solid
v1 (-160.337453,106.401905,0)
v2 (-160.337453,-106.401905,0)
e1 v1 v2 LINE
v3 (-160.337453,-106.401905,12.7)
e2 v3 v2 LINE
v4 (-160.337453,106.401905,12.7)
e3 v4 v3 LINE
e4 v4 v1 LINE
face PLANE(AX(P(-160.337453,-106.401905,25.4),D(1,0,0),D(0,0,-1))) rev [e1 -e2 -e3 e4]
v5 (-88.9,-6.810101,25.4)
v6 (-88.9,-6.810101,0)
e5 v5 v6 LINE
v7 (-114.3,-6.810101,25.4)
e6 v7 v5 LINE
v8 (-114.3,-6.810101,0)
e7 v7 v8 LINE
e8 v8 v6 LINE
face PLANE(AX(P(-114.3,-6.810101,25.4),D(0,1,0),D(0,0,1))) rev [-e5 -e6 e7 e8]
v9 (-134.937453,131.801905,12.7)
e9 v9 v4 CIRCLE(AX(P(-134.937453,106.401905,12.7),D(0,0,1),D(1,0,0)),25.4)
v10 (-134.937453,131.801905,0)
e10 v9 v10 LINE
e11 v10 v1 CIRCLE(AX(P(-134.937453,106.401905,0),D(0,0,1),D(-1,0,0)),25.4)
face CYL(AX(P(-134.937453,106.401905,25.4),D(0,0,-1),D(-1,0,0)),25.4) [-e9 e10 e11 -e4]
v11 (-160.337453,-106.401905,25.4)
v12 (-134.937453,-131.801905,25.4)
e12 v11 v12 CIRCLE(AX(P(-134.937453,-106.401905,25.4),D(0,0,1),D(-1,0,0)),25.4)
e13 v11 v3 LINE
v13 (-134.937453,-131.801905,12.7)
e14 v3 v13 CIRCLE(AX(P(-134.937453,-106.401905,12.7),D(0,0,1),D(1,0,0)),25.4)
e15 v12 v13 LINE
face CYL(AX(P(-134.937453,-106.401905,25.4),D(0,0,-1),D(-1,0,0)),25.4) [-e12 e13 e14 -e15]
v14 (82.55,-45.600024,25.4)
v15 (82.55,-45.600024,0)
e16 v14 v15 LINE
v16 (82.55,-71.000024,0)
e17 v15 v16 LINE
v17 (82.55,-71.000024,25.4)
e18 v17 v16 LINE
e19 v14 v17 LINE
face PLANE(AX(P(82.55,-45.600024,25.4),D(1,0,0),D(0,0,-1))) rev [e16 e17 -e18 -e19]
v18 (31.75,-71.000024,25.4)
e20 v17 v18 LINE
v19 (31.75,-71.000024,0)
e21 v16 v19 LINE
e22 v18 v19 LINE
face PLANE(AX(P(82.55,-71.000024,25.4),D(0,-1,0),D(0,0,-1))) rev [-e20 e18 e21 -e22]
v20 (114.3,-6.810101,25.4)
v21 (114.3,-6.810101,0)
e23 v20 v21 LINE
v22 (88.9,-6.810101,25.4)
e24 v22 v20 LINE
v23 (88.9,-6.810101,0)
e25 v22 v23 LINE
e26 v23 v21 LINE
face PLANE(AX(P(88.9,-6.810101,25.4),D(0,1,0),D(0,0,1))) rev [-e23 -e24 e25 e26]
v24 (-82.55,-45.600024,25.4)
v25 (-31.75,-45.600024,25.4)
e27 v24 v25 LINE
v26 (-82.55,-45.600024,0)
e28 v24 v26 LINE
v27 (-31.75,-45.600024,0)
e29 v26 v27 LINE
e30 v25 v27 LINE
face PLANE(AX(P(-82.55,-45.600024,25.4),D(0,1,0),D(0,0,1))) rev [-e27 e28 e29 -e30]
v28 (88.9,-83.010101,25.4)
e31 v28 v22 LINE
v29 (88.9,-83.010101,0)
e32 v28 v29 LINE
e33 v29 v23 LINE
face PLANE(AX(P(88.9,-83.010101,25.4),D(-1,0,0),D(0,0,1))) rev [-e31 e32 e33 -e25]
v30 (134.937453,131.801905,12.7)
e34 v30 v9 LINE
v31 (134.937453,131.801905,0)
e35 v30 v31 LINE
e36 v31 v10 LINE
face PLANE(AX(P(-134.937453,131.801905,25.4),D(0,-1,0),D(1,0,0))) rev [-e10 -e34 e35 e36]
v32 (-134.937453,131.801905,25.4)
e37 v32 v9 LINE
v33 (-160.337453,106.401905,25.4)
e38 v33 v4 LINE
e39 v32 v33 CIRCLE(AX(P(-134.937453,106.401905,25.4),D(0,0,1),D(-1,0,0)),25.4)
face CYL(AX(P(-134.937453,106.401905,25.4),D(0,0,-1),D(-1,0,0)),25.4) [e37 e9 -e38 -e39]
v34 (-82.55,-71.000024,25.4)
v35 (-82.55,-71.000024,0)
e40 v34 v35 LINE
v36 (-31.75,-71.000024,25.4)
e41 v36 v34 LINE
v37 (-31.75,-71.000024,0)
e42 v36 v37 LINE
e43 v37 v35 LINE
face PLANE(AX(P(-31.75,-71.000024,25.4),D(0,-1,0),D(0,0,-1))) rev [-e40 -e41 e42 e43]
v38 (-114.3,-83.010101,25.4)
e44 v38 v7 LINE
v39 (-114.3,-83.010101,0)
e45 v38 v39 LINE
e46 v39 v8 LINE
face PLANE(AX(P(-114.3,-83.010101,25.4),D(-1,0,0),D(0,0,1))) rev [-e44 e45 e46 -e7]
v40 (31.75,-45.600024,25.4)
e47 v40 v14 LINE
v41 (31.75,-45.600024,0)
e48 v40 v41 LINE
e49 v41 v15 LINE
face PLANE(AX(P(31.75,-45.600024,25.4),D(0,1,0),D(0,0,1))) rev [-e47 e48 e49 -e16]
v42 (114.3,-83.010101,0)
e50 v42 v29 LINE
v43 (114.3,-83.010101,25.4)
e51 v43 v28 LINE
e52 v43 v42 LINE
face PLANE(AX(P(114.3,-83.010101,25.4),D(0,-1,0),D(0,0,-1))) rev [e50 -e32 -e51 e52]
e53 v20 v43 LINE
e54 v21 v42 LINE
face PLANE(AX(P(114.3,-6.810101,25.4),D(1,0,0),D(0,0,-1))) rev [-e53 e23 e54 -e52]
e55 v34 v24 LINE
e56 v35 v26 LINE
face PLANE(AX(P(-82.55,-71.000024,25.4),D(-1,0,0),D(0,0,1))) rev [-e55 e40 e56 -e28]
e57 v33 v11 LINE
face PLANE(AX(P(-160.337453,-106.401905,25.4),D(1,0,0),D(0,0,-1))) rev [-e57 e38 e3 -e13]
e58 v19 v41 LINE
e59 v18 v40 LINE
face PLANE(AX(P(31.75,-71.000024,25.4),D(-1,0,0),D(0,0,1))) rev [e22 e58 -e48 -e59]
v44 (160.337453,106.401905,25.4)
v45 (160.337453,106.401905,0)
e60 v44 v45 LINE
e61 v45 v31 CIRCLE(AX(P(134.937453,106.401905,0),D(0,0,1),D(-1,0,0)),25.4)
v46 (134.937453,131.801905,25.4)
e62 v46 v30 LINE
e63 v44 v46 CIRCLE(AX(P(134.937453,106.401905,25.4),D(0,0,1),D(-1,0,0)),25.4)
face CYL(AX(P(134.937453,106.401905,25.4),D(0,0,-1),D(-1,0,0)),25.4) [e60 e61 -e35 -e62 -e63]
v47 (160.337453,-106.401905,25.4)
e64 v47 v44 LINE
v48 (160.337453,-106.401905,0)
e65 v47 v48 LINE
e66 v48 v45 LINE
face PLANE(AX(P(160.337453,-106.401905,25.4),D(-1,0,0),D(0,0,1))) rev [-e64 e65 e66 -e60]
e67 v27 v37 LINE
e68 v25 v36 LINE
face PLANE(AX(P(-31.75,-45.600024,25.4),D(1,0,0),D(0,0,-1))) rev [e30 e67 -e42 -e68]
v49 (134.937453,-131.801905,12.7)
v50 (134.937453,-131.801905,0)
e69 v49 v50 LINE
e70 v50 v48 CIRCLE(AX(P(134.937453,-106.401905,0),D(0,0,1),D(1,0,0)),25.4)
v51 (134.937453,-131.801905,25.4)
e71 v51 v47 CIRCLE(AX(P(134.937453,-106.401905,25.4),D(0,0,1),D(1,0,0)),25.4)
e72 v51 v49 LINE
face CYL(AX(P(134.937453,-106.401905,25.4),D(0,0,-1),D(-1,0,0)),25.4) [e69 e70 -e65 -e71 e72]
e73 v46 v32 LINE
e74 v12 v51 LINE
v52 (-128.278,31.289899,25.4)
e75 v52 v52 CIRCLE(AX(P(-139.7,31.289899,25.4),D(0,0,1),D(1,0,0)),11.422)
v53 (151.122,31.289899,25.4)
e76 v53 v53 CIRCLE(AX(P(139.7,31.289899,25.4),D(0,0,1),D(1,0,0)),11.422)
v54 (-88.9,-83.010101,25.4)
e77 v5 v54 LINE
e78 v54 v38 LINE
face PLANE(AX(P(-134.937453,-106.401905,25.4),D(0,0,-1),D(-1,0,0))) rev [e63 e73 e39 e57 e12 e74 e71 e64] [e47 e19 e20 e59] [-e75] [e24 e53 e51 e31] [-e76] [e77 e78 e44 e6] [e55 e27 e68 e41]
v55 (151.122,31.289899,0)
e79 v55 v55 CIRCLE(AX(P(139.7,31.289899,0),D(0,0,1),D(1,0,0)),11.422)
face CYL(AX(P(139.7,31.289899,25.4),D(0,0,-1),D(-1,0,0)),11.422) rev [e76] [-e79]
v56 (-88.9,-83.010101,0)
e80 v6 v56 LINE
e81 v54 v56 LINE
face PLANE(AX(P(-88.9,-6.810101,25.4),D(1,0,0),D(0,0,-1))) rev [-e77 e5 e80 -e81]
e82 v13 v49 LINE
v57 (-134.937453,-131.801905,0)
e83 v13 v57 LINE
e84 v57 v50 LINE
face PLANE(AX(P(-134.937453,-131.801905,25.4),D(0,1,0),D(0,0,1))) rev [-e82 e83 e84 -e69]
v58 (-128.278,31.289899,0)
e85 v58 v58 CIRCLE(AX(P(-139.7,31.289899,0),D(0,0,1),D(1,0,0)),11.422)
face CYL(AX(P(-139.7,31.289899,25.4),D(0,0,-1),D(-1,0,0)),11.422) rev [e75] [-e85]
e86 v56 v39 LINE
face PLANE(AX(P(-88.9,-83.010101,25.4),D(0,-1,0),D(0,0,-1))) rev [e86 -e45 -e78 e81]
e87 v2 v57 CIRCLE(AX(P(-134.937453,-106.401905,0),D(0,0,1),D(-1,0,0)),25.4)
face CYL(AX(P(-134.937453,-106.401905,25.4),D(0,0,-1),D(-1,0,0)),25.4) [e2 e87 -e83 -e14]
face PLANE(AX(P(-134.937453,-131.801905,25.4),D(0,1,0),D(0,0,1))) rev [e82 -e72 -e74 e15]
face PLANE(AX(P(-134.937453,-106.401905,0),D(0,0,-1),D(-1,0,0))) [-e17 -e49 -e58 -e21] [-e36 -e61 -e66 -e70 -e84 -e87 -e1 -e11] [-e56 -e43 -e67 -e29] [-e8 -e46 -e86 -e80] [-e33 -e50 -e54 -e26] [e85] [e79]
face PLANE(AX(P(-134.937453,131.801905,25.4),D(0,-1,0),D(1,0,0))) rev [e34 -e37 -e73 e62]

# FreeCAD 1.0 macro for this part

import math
import FreeCAD as App
import Part
import Sketcher
from FreeCAD import Vector
Q = App.Units.Quantity


def add_polygon(sketch, points):
    """Adds a closed chain of lines whose ends are joined by coincident constraints."""
    first, n = sketch.GeometryCount, len(points)
    for a, b in zip(points, points[1:] + points[:1]):
        sketch.addGeometry(Part.LineSegment(App.Vector(*a, 0), App.Vector(*b, 0)), False)
    for i in range(n):
        sketch.addConstraint(Sketcher.Constraint("Coincident", first + i, 2, first + (i + 1) % n, 1))

doc = App.newDocument("Part")
body = doc.addObject("PartDesign::Body", "Body")

sketch1 = body.newObject("Sketcher::SketchObject", "Sketch")
sketch1.AttachmentSupport = (doc.getObject("XY_Plane"), [""])
sketch1.MapMode = "FlatFace"
sketch1.addGeometry([
    Part.LineSegment(Vector(-135, -132, 0), Vector(135, -132, 0)),
    Part.ArcOfCircle(Part.Circle(Vector(135, -106, 0), Vector(0, 0, 1), 25), math.radians(-90), math.radians(0)),
    Part.LineSegment(Vector(160, -106, 0), Vector(160, 106, 0)),
    Part.ArcOfCircle(Part.Circle(Vector(135, 106, 0), Vector(0, 0, 1), 25), math.radians(0), math.radians(90)),
    Part.LineSegment(Vector(135, 132, 0), Vector(-135, 132, 0)),
    Part.ArcOfCircle(Part.Circle(Vector(-135, 106, 0), Vector(0, 0, 1), 25), math.radians(90), math.radians(180)),
    Part.LineSegment(Vector(-160, 106, 0), Vector(-160, -106, 0)),
    Part.ArcOfCircle(Part.Circle(Vector(-135, -106, 0), Vector(0, 0, 1), 25), math.radians(180), math.radians(270)),
    Part.Circle(Vector(-140, 31, 0), Vector(0, 0, 1), 11),
    Part.Circle(Vector(140, 31, 0), Vector(0, 0, 1), 11),
], False)
sketch1.addConstraint([
    Sketcher.Constraint("Tangent", 0, 2, 1, 1),
    Sketcher.Constraint("Tangent", 1, 2, 2, 1),
    Sketcher.Constraint("Tangent", 2, 2, 3, 1),
    Sketcher.Constraint("Tangent", 3, 2, 4, 1),
    Sketcher.Constraint("Tangent", 4, 2, 5, 1),
    Sketcher.Constraint("Tangent", 5, 2, 6, 1),
    Sketcher.Constraint("Tangent", 6, 2, 7, 1),
    Sketcher.Constraint("Tangent", 7, 2, 0, 1),
    Sketcher.Constraint("Horizontal", 0),
    Sketcher.Constraint("Vertical", 2),
    Sketcher.Constraint("Horizontal", 4),
    Sketcher.Constraint("Vertical", 6),
    Sketcher.Constraint("Equal", 1, 3),
    Sketcher.Constraint("Equal", 3, 5),
    Sketcher.Constraint("Equal", 5, 7),
    Sketcher.Constraint("Equal", 8, 9),
    Sketcher.Constraint("Symmetric", 1, 3, 5, 3, -1, 1),
    Sketcher.Constraint("Symmetric", 8, 3, 9, 3, -2),
    Sketcher.Constraint("Radius", 1, Q("1 in")),
    Sketcher.Constraint("DistanceX", 8, 3, 9, 3, Q("11 in")),
    Sketcher.Constraint("Diameter", 8, Q("22.844 mm")),
    Sketcher.Constraint("DistanceY", 2, 1, 2, 2, Q("212.803809 mm")),
    Sketcher.Constraint("DistanceY", -1, 1, 8, 3, Q("31.289899 mm")),
    Sketcher.Constraint("DistanceX", 0, 1, 0, 2, Q("269.874906 mm")),
])
pad1 = body.newObject("PartDesign::Pad", "Pad")
pad1.Profile = sketch1
pad1.Length = Q("1 in")

sketch2 = body.newObject("Sketcher::SketchObject", "Sketch001")
sketch2.AttachmentSupport = (doc.getObject("XY_Plane"), [""])
sketch2.MapMode = "FlatFace"
add_polygon(sketch2, [(83, -46), (83, -71), (32, -71), (32, -46)])
add_polygon(sketch2, [(-32, -46), (-32, -71), (-83, -71), (-83, -46)])
sketch2.addConstraint([
    Sketcher.Constraint("Vertical", 0),
    Sketcher.Constraint("Horizontal", 1),
    Sketcher.Constraint("Vertical", 2),
    Sketcher.Constraint("Horizontal", 3),
    Sketcher.Constraint("Vertical", 4),
    Sketcher.Constraint("Horizontal", 5),
    Sketcher.Constraint("Vertical", 6),
    Sketcher.Constraint("Horizontal", 7),
    Sketcher.Constraint("Symmetric", 1, 2, 4, 2, -2),
    Sketcher.Constraint("Symmetric", 3, 2, 6, 2, -2),
    Sketcher.Constraint("DistanceX", 1, 2, 1, 1, Q("2 in")),
    Sketcher.Constraint("DistanceY", 0, 2, 0, 1, Q("1 in")),
    Sketcher.Constraint("DistanceX", 4, 2, 1, 2, Q("2.5 in")),
    Sketcher.Constraint("DistanceY", 0, 2, -1, 1, Q("71.000024 mm")),
])
pocket1 = body.newObject("PartDesign::Pocket", "Pocket")
pocket1.Profile = sketch2
pocket1.Length = Q("1 in")
pocket1.Reversed = True

sketch3 = body.newObject("Sketcher::SketchObject", "Sketch002")
sketch3.AttachmentSupport = (doc.getObject("XY_Plane"), [""])
sketch3.MapMode = "FlatFace"
add_polygon(sketch3, [(-114, -7), (-114, -83), (-89, -83), (-89, -7)])
add_polygon(sketch3, [(89, -7), (89, -83), (114, -83), (114, -7)])
sketch3.addConstraint([
    Sketcher.Constraint("Vertical", 0),
    Sketcher.Constraint("Horizontal", 1),
    Sketcher.Constraint("Vertical", 2),
    Sketcher.Constraint("Horizontal", 3),
    Sketcher.Constraint("Vertical", 4),
    Sketcher.Constraint("Horizontal", 5),
    Sketcher.Constraint("Vertical", 6),
    Sketcher.Constraint("Horizontal", 7),
    Sketcher.Constraint("Symmetric", 1, 2, 4, 2, -2),
    Sketcher.Constraint("Symmetric", 3, 2, 6, 2, -2),
    Sketcher.Constraint("DistanceX", 1, 1, 1, 2, Q("1 in")),
    Sketcher.Constraint("DistanceY", 0, 2, 0, 1, Q("3 in")),
    Sketcher.Constraint("DistanceX", 1, 2, 4, 2, Q("7 in")),
    Sketcher.Constraint("DistanceY", 0, 2, -1, 1, Q("83.010101 mm")),
])
pocket2 = body.newObject("PartDesign::Pocket", "Pocket001")
pocket2.Profile = sketch3
pocket2.Length = Q("1 in")
pocket2.Reversed = True

doc.recompute()
